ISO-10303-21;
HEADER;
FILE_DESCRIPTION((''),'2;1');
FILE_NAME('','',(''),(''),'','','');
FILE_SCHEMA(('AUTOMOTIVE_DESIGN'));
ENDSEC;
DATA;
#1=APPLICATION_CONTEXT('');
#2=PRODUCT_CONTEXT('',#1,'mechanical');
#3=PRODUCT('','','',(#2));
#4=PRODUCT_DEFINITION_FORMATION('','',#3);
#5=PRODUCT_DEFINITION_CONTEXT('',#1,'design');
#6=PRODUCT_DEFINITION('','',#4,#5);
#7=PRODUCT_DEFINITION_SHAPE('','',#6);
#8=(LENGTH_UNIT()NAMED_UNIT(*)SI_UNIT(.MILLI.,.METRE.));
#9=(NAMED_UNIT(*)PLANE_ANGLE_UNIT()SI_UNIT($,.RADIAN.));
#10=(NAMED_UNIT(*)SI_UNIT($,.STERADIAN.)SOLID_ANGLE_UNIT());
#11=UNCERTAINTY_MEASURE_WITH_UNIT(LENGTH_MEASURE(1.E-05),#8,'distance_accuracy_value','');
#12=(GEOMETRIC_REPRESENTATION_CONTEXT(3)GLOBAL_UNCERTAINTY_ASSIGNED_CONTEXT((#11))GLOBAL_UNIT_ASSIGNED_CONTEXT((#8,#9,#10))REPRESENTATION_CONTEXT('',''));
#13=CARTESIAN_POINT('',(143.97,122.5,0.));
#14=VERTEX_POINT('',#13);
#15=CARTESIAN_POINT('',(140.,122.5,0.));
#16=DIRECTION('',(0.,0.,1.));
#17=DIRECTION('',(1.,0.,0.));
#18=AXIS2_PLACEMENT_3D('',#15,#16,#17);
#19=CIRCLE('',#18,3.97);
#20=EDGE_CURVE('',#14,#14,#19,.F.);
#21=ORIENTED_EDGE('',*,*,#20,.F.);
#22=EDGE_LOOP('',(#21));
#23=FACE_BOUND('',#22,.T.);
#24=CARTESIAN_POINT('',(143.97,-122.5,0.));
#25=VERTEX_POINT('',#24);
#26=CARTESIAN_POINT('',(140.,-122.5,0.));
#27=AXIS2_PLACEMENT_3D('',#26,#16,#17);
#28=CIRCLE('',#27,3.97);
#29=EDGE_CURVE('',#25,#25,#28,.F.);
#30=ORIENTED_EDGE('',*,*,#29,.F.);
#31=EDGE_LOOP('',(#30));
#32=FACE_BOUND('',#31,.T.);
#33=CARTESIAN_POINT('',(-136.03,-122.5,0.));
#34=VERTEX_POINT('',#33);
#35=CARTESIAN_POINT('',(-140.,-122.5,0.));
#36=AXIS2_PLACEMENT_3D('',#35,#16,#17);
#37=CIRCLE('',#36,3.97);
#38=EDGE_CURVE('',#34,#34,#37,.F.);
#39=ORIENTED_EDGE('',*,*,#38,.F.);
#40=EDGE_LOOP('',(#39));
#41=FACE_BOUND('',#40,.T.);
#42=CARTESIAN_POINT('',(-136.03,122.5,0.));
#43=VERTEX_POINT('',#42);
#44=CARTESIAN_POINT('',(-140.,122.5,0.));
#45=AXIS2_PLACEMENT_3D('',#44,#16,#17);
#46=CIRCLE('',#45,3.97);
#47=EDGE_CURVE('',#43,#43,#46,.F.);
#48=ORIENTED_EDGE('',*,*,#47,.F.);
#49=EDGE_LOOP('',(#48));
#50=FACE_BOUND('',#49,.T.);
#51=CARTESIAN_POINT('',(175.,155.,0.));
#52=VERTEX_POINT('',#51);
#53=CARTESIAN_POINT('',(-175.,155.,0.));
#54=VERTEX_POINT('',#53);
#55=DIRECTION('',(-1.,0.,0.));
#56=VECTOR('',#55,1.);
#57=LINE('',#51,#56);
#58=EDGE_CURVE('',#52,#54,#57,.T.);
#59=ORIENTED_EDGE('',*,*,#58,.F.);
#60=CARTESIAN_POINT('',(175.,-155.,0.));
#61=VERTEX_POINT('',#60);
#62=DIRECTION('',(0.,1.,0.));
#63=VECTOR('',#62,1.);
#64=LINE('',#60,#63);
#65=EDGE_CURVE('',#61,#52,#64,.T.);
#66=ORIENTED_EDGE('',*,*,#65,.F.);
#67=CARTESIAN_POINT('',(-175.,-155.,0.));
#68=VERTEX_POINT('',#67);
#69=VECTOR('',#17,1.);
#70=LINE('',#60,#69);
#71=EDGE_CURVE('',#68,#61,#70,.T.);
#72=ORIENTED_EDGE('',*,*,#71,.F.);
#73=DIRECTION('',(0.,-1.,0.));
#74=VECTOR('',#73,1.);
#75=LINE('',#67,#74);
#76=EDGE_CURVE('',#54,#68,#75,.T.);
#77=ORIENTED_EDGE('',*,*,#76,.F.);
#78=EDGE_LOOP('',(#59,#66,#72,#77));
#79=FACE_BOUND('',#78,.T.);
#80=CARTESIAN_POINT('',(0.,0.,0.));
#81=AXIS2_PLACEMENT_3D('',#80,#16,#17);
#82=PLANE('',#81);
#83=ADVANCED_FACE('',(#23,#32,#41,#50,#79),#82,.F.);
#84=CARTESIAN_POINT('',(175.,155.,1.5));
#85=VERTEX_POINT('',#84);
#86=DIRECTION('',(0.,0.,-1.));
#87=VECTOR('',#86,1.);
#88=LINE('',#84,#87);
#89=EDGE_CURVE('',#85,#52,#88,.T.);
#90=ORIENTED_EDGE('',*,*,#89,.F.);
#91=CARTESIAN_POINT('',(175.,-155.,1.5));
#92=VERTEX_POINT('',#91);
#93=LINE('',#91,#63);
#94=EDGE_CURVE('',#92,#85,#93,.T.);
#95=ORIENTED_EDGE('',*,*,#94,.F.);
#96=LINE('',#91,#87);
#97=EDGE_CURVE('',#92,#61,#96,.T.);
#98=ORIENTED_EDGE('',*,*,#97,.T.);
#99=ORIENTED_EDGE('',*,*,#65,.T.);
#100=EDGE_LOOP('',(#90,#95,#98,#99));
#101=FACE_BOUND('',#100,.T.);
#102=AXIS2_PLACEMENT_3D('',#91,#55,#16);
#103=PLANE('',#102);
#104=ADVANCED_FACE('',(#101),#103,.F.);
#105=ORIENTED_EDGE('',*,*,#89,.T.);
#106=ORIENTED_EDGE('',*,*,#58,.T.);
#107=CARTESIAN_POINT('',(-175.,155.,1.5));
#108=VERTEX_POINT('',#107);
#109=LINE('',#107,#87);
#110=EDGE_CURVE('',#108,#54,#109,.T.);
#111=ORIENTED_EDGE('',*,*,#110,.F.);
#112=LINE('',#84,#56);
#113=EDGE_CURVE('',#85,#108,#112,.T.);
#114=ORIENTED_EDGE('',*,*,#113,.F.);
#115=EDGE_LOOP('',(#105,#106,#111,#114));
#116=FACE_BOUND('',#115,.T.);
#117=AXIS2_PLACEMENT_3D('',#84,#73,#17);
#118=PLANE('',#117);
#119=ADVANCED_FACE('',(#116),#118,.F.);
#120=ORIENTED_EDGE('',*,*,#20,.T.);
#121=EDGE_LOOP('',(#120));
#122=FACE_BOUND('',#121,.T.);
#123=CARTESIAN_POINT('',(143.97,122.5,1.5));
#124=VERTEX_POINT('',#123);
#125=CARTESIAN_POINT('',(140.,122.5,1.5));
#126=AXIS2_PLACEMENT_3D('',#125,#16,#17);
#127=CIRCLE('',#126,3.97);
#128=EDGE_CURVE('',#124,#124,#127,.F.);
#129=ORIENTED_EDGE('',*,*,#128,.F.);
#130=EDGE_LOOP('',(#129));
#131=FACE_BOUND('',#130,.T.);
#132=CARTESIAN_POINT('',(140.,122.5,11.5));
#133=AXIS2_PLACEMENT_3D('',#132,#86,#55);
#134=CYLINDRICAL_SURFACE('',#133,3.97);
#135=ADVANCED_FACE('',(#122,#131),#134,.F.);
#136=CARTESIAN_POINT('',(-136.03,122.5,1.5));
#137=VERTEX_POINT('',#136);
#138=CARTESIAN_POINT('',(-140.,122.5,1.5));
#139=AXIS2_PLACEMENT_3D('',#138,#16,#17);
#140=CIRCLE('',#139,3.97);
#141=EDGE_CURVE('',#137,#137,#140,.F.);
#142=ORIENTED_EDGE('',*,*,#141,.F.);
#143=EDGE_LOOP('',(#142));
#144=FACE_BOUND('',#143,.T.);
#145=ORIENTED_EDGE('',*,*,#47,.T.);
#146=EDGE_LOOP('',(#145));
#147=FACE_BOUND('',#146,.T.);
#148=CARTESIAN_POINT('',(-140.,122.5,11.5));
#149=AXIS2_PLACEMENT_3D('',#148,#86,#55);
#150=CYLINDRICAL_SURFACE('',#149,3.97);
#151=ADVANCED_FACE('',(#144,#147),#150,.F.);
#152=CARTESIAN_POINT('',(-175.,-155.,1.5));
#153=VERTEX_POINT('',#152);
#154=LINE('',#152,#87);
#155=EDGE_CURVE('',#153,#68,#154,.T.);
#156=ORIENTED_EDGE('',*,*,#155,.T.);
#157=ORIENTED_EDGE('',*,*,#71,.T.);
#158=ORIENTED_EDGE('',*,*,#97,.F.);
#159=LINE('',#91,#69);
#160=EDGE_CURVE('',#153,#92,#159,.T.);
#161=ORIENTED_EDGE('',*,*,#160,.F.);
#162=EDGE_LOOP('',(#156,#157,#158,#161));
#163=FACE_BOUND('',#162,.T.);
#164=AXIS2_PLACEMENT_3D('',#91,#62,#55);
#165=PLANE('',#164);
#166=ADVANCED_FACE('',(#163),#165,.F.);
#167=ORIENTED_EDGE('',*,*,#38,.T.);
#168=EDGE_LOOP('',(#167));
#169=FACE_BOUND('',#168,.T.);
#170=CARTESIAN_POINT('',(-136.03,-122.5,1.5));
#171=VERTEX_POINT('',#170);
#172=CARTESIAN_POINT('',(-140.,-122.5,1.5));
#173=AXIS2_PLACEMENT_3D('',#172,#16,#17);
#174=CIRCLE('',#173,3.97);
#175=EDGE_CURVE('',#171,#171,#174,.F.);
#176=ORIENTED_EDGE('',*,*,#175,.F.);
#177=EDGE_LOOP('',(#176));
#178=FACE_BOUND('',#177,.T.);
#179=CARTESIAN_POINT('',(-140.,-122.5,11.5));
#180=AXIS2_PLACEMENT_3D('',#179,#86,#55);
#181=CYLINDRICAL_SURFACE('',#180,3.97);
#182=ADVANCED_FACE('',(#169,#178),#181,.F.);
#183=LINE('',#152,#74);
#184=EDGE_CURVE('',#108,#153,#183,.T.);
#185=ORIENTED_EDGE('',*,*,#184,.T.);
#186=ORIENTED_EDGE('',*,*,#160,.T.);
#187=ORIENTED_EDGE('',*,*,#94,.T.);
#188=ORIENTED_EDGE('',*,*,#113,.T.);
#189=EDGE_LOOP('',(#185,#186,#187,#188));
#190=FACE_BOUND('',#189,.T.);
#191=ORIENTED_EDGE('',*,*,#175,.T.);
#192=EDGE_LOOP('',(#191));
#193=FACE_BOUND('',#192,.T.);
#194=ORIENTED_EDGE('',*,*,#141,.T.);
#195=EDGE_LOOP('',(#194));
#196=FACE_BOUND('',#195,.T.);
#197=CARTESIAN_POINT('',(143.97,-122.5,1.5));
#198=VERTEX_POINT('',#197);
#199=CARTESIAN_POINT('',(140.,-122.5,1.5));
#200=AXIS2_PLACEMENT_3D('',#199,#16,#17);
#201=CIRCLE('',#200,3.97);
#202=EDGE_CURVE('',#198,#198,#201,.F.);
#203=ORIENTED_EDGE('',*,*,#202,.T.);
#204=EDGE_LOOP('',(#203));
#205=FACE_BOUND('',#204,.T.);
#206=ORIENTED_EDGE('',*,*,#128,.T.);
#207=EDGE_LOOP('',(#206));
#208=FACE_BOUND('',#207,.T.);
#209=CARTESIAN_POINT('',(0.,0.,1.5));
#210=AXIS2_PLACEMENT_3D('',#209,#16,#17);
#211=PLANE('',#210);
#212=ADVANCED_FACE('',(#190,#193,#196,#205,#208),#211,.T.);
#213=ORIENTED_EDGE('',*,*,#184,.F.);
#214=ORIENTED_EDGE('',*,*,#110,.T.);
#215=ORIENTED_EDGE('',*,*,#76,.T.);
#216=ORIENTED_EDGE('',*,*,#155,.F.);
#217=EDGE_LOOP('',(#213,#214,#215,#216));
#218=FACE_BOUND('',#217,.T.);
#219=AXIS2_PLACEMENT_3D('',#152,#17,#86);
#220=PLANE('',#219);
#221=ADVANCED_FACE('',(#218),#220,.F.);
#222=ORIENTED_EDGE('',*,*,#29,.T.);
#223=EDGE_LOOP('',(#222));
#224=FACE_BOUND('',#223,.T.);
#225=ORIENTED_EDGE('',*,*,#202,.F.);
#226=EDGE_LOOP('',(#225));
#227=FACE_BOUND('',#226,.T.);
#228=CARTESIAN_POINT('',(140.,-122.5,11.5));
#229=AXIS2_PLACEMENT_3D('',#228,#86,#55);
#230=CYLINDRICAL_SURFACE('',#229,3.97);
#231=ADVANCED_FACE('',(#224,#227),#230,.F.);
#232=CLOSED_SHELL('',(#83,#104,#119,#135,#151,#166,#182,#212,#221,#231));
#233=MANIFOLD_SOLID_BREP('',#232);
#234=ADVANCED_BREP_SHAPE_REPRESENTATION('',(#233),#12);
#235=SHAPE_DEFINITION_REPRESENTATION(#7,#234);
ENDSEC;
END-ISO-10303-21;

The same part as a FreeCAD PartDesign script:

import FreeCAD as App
import Part
import Sketcher

V = App.Vector
Q = App.Units.Quantity

doc = App.newDocument("Part")
body = doc.addObject("PartDesign::Body", "Body")

# Sketch on XY plane
sketch1 = body.newObject("Sketcher::SketchObject", "Sketch")
sketch1.AttachmentSupport = (doc.getObject("XY_Plane"), [""])
sketch1.MapMode = "FlatFace"
sketch1.addGeometry([
    Part.LineSegment(V(-175, 155, 0), V(-175, -155, 0)),
    Part.LineSegment(V(-175, -155, 0), V(175, -155, 0)),
    Part.LineSegment(V(175, -155, 0), V(175, 155, 0)),
    Part.LineSegment(V(175, 155, 0), V(-175, 155, 0)),
], False)
sketch1.addConstraint([
    Sketcher.Constraint("Coincident", 0, 2, 1, 1),
    Sketcher.Constraint("Coincident", 1, 2, 2, 1),
    Sketcher.Constraint("Coincident", 2, 2, 3, 1),
    Sketcher.Constraint("Coincident", 3, 2, 0, 1),
    Sketcher.Constraint("Vertical", 0),
    Sketcher.Constraint("Horizontal", 1),
    Sketcher.Constraint("Vertical", 2),
    Sketcher.Constraint("Horizontal", 3),
    Sketcher.Constraint("Symmetric", 0, 2, 2, 2, -1, 1),
    Sketcher.Constraint("DistanceX", 1, 1, 1, 2, Q("350 mm")),
    Sketcher.Constraint("DistanceY", 0, 2, 0, 1, Q("310 mm")),
])
pad1 = body.newObject("PartDesign::Pad", "Pad")
pad1.Profile = sketch1
pad1.Length = 1.5

# Sketch on XY plane
sketch2 = body.newObject("Sketcher::SketchObject", "Sketch001")
sketch2.AttachmentSupport = (doc.getObject("XY_Plane"), [""])
sketch2.MapMode = "FlatFace"
sketch2.AttachmentOffset = App.Placement(V(0, 0, 1.5), App.Rotation())
sketch2.addGeometry([
    Part.Circle(V(-140, 122.5, 0), V(0, 0, 1), 3.97),
    Part.Circle(V(140, 122.5, 0), V(0, 0, 1), 3.97),
    Part.Circle(V(-140, -122.5, 0), V(0, 0, 1), 3.97),
    Part.Circle(V(140, -122.5, 0), V(0, 0, 1), 3.97),
], False)
sketch2.addConstraint([
    Sketcher.Constraint("Equal", 0, 1),
    Sketcher.Constraint("Equal", 1, 2),
    Sketcher.Constraint("Equal", 2, 3),
    Sketcher.Constraint("Symmetric", 1, 3, 2, 3, -1, 1),
    Sketcher.Constraint("Symmetric", 0, 3, 3, 3, -1, 1),
    Sketcher.Constraint("Symmetric", 0, 3, 1, 3, -2),
    Sketcher.Constraint("Diameter", 0, Q("7.94 mm")),
    Sketcher.Constraint("DistanceX", 0, 3, -1, 1, Q("140 mm")),
    Sketcher.Constraint("DistanceY", 2, 3, 0, 3, Q("245 mm")),
])
pocket1 = body.newObject("PartDesign::Pocket", "Pocket")
pocket1.Profile = sketch2
pocket1.Type = "ThroughAll"
pocket1.Midplane = True

doc.recompute()
